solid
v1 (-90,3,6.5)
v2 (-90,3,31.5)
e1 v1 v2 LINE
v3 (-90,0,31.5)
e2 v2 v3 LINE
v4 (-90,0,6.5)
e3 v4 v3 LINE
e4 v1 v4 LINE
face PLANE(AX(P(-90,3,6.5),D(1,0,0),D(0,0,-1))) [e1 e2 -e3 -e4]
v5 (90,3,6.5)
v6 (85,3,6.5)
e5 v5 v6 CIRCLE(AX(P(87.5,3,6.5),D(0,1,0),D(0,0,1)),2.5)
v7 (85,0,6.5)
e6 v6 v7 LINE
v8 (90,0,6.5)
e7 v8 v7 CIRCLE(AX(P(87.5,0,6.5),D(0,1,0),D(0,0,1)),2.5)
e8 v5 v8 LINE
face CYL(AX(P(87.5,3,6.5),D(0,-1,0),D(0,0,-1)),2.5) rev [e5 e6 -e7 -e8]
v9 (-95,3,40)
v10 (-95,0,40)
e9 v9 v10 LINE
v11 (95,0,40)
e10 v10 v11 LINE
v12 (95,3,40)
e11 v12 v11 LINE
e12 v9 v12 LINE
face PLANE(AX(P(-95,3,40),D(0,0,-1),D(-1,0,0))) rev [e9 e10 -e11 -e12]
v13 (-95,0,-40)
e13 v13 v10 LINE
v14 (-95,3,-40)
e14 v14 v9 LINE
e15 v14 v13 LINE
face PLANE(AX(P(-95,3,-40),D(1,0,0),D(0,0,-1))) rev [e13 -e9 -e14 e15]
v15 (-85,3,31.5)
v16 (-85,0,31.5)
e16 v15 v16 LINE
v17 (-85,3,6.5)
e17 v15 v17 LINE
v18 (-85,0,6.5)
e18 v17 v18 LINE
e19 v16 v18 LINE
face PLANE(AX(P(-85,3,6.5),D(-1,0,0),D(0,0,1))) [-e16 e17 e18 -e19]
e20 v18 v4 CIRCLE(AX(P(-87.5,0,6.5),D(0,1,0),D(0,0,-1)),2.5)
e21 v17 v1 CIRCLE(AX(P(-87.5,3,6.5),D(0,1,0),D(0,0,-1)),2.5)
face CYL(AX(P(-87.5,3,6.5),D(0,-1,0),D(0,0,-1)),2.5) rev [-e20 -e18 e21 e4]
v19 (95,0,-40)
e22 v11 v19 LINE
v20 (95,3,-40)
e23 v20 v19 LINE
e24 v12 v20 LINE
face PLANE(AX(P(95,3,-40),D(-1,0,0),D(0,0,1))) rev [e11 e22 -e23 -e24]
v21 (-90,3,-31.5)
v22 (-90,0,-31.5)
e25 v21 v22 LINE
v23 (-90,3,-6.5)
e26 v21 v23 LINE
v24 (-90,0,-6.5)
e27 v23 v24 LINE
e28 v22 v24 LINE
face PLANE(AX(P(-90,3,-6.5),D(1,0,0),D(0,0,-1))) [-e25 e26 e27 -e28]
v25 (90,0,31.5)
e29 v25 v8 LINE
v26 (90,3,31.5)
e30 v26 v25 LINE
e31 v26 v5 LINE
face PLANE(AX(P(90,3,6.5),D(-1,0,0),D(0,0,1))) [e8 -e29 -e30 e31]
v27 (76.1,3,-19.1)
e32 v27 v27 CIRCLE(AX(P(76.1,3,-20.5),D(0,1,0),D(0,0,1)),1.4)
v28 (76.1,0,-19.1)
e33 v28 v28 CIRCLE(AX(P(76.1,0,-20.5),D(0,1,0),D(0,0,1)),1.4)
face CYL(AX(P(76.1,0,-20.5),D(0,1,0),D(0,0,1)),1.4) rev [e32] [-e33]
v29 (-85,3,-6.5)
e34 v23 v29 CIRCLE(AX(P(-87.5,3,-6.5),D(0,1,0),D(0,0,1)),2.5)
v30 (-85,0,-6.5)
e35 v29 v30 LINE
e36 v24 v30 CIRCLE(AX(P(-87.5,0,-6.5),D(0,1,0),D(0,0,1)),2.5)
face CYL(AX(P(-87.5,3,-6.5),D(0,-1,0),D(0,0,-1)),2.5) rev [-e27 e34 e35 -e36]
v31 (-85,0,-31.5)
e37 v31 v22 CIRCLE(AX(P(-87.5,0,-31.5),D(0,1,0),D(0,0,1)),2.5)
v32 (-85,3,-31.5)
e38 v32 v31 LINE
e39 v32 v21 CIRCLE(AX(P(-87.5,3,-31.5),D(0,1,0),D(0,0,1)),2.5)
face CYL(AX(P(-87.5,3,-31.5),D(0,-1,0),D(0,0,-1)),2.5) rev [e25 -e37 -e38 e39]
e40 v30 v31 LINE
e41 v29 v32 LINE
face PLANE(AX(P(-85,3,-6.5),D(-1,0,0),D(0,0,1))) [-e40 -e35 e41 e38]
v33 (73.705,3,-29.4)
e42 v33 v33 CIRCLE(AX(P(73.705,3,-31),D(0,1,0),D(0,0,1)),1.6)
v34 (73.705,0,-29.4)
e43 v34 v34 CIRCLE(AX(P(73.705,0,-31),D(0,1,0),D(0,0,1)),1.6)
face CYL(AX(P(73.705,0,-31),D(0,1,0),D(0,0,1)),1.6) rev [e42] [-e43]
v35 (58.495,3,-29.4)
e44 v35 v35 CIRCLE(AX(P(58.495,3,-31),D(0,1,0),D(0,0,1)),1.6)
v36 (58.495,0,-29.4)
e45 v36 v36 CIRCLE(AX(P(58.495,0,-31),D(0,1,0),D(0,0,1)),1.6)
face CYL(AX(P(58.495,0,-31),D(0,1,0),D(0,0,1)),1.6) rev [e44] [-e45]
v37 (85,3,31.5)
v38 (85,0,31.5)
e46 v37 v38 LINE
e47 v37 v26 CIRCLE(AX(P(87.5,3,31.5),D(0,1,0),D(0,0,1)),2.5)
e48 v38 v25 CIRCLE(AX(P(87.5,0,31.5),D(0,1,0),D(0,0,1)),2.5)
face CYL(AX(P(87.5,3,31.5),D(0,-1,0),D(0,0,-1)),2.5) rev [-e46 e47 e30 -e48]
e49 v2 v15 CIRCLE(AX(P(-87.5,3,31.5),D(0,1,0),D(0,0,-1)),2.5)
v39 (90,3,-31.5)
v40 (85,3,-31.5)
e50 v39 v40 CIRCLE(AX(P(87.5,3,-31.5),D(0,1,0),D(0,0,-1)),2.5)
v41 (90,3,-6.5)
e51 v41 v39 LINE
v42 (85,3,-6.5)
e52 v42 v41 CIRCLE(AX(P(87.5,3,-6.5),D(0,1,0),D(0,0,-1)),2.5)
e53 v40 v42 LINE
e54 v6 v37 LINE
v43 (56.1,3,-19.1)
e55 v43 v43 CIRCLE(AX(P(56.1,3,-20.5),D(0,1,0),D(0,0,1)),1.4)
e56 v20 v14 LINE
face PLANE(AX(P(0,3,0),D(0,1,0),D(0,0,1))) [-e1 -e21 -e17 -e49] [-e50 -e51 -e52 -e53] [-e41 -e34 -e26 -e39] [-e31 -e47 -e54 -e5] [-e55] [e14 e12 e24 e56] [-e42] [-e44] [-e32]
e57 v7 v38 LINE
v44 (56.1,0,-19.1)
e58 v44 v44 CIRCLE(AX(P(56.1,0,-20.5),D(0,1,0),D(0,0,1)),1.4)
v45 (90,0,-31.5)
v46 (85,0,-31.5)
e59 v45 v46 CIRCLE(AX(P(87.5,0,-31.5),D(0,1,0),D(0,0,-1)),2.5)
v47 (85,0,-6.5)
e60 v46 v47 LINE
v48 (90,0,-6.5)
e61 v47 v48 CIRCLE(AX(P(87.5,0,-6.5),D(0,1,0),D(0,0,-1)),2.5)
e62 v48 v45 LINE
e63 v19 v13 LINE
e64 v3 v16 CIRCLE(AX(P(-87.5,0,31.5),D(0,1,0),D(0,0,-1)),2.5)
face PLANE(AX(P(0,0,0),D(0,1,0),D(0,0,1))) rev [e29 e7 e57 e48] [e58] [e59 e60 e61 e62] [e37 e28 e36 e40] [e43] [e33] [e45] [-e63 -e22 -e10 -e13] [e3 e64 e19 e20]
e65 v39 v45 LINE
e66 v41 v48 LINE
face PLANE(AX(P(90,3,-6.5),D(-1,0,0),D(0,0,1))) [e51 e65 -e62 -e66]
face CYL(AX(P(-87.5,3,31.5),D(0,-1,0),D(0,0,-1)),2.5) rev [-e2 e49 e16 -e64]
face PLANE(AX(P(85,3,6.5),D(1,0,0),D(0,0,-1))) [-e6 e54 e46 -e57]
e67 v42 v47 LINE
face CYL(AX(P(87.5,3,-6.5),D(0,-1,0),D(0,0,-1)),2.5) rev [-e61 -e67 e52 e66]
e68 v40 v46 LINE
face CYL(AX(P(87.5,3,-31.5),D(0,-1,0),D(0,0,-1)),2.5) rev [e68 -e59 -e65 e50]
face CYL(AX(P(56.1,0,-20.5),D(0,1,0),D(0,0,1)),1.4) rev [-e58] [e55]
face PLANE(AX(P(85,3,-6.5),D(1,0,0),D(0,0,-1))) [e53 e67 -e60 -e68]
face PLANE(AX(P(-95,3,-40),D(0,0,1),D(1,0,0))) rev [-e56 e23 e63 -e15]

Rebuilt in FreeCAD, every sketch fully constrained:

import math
import FreeCAD as App
import Part
import Sketcher


def add_polygon(sketch, points):
    """Adds a closed chain of lines whose ends are joined by coincident constraints."""
    first, n = sketch.GeometryCount, len(points)
    for a, b in zip(points, points[1:] + points[:1]):
        sketch.addGeometry(Part.LineSegment(App.Vector(*a, 0), App.Vector(*b, 0)), False)
    for i in range(n):
        sketch.addConstraint(Sketcher.Constraint("Coincident", first + i, 2, first + (i + 1) % n, 1))

doc = App.newDocument("Part")
body = doc.addObject("PartDesign::Body", "Body")

sketch1 = body.newObject("Sketcher::SketchObject", "Sketch")
sketch1.AttachmentSupport = (doc.getObject("XZ_Plane"), [""])
sketch1.MapMode = "FlatFace"
add_polygon(sketch1, [(-95, -40), (-95, 40), (95, 40), (95, -40)])
sketch1.addGeometry(Part.LineSegment(App.Vector(-90, 31.5, 0), App.Vector(-90, 6.5, 0)), False)
sketch1.addGeometry(Part.ArcOfCircle(Part.Circle(App.Vector(-87.5, 6.5, 0), App.Vector(0, 0, 1), 2.5), math.radians(180), math.radians(360)), False)
sketch1.addGeometry(Part.LineSegment(App.Vector(-85, 6.5, 0), App.Vector(-85, 31.5, 0)), False)
sketch1.addGeometry(Part.ArcOfCircle(Part.Circle(App.Vector(-87.5, 31.5, 0), App.Vector(0, 0, 1), 2.5), math.radians(0), math.radians(180)), False)
sketch1.addGeometry(Part.ArcOfCircle(Part.Circle(App.Vector(87.5, 6.5, 0), App.Vector(0, 0, 1), 2.5), math.radians(180), math.radians(360)), False)
sketch1.addGeometry(Part.LineSegment(App.Vector(90, 6.5, 0), App.Vector(90, 31.5, 0)), False)
sketch1.addGeometry(Part.ArcOfCircle(Part.Circle(App.Vector(87.5, 31.5, 0), App.Vector(0, 0, 1), 2.5), math.radians(0), math.radians(180)), False)
sketch1.addGeometry(Part.LineSegment(App.Vector(85, 31.5, 0), App.Vector(85, 6.5, 0)), False)
sketch1.addGeometry(Part.ArcOfCircle(Part.Circle(App.Vector(-87.5, -6.5, 0), App.Vector(0, 0, 1), 2.5), math.radians(0), math.radians(180)), False)
sketch1.addGeometry(Part.LineSegment(App.Vector(-90, -6.5, 0), App.Vector(-90, -31.5, 0)), False)
sketch1.addGeometry(Part.ArcOfCircle(Part.Circle(App.Vector(-87.5, -31.5, 0), App.Vector(0, 0, 1), 2.5), math.radians(180), math.radians(360)), False)
sketch1.addGeometry(Part.LineSegment(App.Vector(-85, -31.5, 0), App.Vector(-85, -6.5, 0)), False)
sketch1.addGeometry(Part.LineSegment(App.Vector(90, -31.5, 0), App.Vector(90, -6.5, 0)), False)
sketch1.addGeometry(Part.ArcOfCircle(Part.Circle(App.Vector(87.5, -6.5, 0), App.Vector(0, 0, 1), 2.5), math.radians(0), math.radians(180)), False)
sketch1.addGeometry(Part.LineSegment(App.Vector(85, -6.5, 0), App.Vector(85, -31.5, 0)), False)
sketch1.addGeometry(Part.ArcOfCircle(Part.Circle(App.Vector(87.5, -31.5, 0), App.Vector(0, 0, 1), 2.5), math.radians(180), math.radians(360)), False)
sketch1.addConstraint(Sketcher.Constraint("Tangent", 4, 2, 5, 1))
sketch1.addConstraint(Sketcher.Constraint("Tangent", 5, 2, 6, 1))
sketch1.addConstraint(Sketcher.Constraint("Tangent", 6, 2, 7, 1))
sketch1.addConstraint(Sketcher.Constraint("Tangent", 7, 2, 4, 1))
sketch1.addConstraint(Sketcher.Constraint("Tangent", 8, 2, 9, 1))
sketch1.addConstraint(Sketcher.Constraint("Tangent", 9, 2, 10, 1))
sketch1.addConstraint(Sketcher.Constraint("Tangent", 10, 2, 11, 1))
sketch1.addConstraint(Sketcher.Constraint("Tangent", 11, 2, 8, 1))
sketch1.addConstraint(Sketcher.Constraint("Tangent", 12, 2, 13, 1))
sketch1.addConstraint(Sketcher.Constraint("Tangent", 13, 2, 14, 1))
sketch1.addConstraint(Sketcher.Constraint("Tangent", 14, 2, 15, 1))
sketch1.addConstraint(Sketcher.Constraint("Tangent", 15, 2, 12, 1))
sketch1.addConstraint(Sketcher.Constraint("Tangent", 16, 2, 17, 1))
sketch1.addConstraint(Sketcher.Constraint("Tangent", 17, 2, 18, 1))
sketch1.addConstraint(Sketcher.Constraint("Tangent", 18, 2, 19, 1))
sketch1.addConstraint(Sketcher.Constraint("Tangent", 19, 2, 16, 1))
sketch1.addConstraint(Sketcher.Constraint("Vertical", 0))
sketch1.addConstraint(Sketcher.Constraint("Horizontal", 1))
sketch1.addConstraint(Sketcher.Constraint("Vertical", 2))
sketch1.addConstraint(Sketcher.Constraint("Horizontal", 3))
sketch1.addConstraint(Sketcher.Constraint("Vertical", 4))
sketch1.addConstraint(Sketcher.Constraint("Vertical", 6))
sketch1.addConstraint(Sketcher.Constraint("Vertical", 9))
sketch1.addConstraint(Sketcher.Constraint("Vertical", 11))
sketch1.addConstraint(Sketcher.Constraint("Vertical", 13))
sketch1.addConstraint(Sketcher.Constraint("Vertical", 15))
sketch1.addConstraint(Sketcher.Constraint("Vertical", 16))
sketch1.addConstraint(Sketcher.Constraint("Vertical", 18))
sketch1.addConstraint(Sketcher.Constraint("Equal", 7, 8))
sketch1.addConstraint(Sketcher.Constraint("Equal", 10, 12))
sketch1.addConstraint(Sketcher.Constraint("Equal", 14, 17))
sketch1.addConstraint(Sketcher.Constraint("Symmetric", 8, 3, 12, 3, -1, 1))
sketch1.addConstraint(Sketcher.Constraint("Symmetric", 5, 3, 17, 3, -1, 1))
sketch1.addConstraint(Sketcher.Constraint("Symmetric", 0, 2, 2, 2, -1, 1))
sketch1.addConstraint(Sketcher.Constraint("Symmetric", 5, 3, 8, 3, -2))
sketch1.addConstraint(Sketcher.Constraint("Horizontal", 7, 3, 10, 3))
sketch1.addConstraint(Sketcher.Constraint("Horizontal", 14, 3, 19, 3))
sketch1.addConstraint(Sketcher.Constraint("Equal", 11, 13))
sketch1.addConstraint(Sketcher.Constraint("Radius", 5, 2.5))
sketch1.addConstraint(Sketcher.Constraint("DistanceX", 1, 1, 1, 2, 190.0))
sketch1.addConstraint(Sketcher.Constraint("DistanceY", 0, 1, 0, 2, 80.0))
sketch1.addConstraint(Sketcher.Constraint("DistanceY", 4, 2, 4, 1, 25.0))
sketch1.addConstraint(Sketcher.Constraint("DistanceX", 4, 2, -1, 1, 90.0))
sketch1.addConstraint(Sketcher.Constraint("DistanceY", 12, 3, 5, 3, 13.0))
pad1 = body.newObject("PartDesign::Pad", "Pad")
pad1.Profile = sketch1
pad1.Length = 3
pad1.Reversed = True

sketch2 = body.newObject("Sketcher::SketchObject", "Sketch001")
sketch2.AttachmentSupport = (doc.getObject("XZ_Plane"), [""])
sketch2.MapMode = "FlatFace"
sketch2.AttachmentOffset = App.Placement(App.Vector(0, 0, -3), App.Rotation())
sketch2.addGeometry(Part.Circle(App.Vector(56.1, -20.5, 0), App.Vector(0, 0, 1), 1.4), False)
sketch2.addGeometry(Part.Circle(App.Vector(76.1, -20.5, 0), App.Vector(0, 0, 1), 1.4), False)
sketch2.addGeometry(Part.Circle(App.Vector(58.5, -31, 0), App.Vector(0, 0, 1), 1.6), False)
sketch2.addGeometry(Part.Circle(App.Vector(73.7, -31, 0), App.Vector(0, 0, 1), 1.6), False)
sketch2.addConstraint(Sketcher.Constraint("Equal", 0, 1))
sketch2.addConstraint(Sketcher.Constraint("Equal", 2, 3))
sketch2.addConstraint(Sketcher.Constraint("Horizontal", 0, 3, 1, 3))
sketch2.addConstraint(Sketcher.Constraint("Horizontal", 2, 3, 3, 3))
sketch2.addConstraint(Sketcher.Constraint("Diameter", 0, 2.8))
sketch2.addConstraint(Sketcher.Constraint("Diameter", 2, 3.2))
sketch2.addConstraint(Sketcher.Constraint("DistanceY", 2, 3, -1, 1, 31.0))
sketch2.addConstraint(Sketcher.Constraint("DistanceX", 0, 3, 1, 3, 20.0))
sketch2.addConstraint(Sketcher.Constraint("DistanceX", -1, 1, 0, 3, 56.1))
sketch2.addConstraint(Sketcher.Constraint("DistanceY", 0, 3, -1, 1, 20.5))
sketch2.addConstraint(Sketcher.Constraint("DistanceX", 2, 3, 3, 3, 15.21))
sketch2.addConstraint(Sketcher.Constraint("DistanceX", -1, 1, 2, 3, 58.495))
pocket1 = body.newObject("PartDesign::Pocket", "Pocket")
pocket1.Profile = sketch2
pocket1.Length = 3
pocket1.Reversed = True

doc.recompute()
